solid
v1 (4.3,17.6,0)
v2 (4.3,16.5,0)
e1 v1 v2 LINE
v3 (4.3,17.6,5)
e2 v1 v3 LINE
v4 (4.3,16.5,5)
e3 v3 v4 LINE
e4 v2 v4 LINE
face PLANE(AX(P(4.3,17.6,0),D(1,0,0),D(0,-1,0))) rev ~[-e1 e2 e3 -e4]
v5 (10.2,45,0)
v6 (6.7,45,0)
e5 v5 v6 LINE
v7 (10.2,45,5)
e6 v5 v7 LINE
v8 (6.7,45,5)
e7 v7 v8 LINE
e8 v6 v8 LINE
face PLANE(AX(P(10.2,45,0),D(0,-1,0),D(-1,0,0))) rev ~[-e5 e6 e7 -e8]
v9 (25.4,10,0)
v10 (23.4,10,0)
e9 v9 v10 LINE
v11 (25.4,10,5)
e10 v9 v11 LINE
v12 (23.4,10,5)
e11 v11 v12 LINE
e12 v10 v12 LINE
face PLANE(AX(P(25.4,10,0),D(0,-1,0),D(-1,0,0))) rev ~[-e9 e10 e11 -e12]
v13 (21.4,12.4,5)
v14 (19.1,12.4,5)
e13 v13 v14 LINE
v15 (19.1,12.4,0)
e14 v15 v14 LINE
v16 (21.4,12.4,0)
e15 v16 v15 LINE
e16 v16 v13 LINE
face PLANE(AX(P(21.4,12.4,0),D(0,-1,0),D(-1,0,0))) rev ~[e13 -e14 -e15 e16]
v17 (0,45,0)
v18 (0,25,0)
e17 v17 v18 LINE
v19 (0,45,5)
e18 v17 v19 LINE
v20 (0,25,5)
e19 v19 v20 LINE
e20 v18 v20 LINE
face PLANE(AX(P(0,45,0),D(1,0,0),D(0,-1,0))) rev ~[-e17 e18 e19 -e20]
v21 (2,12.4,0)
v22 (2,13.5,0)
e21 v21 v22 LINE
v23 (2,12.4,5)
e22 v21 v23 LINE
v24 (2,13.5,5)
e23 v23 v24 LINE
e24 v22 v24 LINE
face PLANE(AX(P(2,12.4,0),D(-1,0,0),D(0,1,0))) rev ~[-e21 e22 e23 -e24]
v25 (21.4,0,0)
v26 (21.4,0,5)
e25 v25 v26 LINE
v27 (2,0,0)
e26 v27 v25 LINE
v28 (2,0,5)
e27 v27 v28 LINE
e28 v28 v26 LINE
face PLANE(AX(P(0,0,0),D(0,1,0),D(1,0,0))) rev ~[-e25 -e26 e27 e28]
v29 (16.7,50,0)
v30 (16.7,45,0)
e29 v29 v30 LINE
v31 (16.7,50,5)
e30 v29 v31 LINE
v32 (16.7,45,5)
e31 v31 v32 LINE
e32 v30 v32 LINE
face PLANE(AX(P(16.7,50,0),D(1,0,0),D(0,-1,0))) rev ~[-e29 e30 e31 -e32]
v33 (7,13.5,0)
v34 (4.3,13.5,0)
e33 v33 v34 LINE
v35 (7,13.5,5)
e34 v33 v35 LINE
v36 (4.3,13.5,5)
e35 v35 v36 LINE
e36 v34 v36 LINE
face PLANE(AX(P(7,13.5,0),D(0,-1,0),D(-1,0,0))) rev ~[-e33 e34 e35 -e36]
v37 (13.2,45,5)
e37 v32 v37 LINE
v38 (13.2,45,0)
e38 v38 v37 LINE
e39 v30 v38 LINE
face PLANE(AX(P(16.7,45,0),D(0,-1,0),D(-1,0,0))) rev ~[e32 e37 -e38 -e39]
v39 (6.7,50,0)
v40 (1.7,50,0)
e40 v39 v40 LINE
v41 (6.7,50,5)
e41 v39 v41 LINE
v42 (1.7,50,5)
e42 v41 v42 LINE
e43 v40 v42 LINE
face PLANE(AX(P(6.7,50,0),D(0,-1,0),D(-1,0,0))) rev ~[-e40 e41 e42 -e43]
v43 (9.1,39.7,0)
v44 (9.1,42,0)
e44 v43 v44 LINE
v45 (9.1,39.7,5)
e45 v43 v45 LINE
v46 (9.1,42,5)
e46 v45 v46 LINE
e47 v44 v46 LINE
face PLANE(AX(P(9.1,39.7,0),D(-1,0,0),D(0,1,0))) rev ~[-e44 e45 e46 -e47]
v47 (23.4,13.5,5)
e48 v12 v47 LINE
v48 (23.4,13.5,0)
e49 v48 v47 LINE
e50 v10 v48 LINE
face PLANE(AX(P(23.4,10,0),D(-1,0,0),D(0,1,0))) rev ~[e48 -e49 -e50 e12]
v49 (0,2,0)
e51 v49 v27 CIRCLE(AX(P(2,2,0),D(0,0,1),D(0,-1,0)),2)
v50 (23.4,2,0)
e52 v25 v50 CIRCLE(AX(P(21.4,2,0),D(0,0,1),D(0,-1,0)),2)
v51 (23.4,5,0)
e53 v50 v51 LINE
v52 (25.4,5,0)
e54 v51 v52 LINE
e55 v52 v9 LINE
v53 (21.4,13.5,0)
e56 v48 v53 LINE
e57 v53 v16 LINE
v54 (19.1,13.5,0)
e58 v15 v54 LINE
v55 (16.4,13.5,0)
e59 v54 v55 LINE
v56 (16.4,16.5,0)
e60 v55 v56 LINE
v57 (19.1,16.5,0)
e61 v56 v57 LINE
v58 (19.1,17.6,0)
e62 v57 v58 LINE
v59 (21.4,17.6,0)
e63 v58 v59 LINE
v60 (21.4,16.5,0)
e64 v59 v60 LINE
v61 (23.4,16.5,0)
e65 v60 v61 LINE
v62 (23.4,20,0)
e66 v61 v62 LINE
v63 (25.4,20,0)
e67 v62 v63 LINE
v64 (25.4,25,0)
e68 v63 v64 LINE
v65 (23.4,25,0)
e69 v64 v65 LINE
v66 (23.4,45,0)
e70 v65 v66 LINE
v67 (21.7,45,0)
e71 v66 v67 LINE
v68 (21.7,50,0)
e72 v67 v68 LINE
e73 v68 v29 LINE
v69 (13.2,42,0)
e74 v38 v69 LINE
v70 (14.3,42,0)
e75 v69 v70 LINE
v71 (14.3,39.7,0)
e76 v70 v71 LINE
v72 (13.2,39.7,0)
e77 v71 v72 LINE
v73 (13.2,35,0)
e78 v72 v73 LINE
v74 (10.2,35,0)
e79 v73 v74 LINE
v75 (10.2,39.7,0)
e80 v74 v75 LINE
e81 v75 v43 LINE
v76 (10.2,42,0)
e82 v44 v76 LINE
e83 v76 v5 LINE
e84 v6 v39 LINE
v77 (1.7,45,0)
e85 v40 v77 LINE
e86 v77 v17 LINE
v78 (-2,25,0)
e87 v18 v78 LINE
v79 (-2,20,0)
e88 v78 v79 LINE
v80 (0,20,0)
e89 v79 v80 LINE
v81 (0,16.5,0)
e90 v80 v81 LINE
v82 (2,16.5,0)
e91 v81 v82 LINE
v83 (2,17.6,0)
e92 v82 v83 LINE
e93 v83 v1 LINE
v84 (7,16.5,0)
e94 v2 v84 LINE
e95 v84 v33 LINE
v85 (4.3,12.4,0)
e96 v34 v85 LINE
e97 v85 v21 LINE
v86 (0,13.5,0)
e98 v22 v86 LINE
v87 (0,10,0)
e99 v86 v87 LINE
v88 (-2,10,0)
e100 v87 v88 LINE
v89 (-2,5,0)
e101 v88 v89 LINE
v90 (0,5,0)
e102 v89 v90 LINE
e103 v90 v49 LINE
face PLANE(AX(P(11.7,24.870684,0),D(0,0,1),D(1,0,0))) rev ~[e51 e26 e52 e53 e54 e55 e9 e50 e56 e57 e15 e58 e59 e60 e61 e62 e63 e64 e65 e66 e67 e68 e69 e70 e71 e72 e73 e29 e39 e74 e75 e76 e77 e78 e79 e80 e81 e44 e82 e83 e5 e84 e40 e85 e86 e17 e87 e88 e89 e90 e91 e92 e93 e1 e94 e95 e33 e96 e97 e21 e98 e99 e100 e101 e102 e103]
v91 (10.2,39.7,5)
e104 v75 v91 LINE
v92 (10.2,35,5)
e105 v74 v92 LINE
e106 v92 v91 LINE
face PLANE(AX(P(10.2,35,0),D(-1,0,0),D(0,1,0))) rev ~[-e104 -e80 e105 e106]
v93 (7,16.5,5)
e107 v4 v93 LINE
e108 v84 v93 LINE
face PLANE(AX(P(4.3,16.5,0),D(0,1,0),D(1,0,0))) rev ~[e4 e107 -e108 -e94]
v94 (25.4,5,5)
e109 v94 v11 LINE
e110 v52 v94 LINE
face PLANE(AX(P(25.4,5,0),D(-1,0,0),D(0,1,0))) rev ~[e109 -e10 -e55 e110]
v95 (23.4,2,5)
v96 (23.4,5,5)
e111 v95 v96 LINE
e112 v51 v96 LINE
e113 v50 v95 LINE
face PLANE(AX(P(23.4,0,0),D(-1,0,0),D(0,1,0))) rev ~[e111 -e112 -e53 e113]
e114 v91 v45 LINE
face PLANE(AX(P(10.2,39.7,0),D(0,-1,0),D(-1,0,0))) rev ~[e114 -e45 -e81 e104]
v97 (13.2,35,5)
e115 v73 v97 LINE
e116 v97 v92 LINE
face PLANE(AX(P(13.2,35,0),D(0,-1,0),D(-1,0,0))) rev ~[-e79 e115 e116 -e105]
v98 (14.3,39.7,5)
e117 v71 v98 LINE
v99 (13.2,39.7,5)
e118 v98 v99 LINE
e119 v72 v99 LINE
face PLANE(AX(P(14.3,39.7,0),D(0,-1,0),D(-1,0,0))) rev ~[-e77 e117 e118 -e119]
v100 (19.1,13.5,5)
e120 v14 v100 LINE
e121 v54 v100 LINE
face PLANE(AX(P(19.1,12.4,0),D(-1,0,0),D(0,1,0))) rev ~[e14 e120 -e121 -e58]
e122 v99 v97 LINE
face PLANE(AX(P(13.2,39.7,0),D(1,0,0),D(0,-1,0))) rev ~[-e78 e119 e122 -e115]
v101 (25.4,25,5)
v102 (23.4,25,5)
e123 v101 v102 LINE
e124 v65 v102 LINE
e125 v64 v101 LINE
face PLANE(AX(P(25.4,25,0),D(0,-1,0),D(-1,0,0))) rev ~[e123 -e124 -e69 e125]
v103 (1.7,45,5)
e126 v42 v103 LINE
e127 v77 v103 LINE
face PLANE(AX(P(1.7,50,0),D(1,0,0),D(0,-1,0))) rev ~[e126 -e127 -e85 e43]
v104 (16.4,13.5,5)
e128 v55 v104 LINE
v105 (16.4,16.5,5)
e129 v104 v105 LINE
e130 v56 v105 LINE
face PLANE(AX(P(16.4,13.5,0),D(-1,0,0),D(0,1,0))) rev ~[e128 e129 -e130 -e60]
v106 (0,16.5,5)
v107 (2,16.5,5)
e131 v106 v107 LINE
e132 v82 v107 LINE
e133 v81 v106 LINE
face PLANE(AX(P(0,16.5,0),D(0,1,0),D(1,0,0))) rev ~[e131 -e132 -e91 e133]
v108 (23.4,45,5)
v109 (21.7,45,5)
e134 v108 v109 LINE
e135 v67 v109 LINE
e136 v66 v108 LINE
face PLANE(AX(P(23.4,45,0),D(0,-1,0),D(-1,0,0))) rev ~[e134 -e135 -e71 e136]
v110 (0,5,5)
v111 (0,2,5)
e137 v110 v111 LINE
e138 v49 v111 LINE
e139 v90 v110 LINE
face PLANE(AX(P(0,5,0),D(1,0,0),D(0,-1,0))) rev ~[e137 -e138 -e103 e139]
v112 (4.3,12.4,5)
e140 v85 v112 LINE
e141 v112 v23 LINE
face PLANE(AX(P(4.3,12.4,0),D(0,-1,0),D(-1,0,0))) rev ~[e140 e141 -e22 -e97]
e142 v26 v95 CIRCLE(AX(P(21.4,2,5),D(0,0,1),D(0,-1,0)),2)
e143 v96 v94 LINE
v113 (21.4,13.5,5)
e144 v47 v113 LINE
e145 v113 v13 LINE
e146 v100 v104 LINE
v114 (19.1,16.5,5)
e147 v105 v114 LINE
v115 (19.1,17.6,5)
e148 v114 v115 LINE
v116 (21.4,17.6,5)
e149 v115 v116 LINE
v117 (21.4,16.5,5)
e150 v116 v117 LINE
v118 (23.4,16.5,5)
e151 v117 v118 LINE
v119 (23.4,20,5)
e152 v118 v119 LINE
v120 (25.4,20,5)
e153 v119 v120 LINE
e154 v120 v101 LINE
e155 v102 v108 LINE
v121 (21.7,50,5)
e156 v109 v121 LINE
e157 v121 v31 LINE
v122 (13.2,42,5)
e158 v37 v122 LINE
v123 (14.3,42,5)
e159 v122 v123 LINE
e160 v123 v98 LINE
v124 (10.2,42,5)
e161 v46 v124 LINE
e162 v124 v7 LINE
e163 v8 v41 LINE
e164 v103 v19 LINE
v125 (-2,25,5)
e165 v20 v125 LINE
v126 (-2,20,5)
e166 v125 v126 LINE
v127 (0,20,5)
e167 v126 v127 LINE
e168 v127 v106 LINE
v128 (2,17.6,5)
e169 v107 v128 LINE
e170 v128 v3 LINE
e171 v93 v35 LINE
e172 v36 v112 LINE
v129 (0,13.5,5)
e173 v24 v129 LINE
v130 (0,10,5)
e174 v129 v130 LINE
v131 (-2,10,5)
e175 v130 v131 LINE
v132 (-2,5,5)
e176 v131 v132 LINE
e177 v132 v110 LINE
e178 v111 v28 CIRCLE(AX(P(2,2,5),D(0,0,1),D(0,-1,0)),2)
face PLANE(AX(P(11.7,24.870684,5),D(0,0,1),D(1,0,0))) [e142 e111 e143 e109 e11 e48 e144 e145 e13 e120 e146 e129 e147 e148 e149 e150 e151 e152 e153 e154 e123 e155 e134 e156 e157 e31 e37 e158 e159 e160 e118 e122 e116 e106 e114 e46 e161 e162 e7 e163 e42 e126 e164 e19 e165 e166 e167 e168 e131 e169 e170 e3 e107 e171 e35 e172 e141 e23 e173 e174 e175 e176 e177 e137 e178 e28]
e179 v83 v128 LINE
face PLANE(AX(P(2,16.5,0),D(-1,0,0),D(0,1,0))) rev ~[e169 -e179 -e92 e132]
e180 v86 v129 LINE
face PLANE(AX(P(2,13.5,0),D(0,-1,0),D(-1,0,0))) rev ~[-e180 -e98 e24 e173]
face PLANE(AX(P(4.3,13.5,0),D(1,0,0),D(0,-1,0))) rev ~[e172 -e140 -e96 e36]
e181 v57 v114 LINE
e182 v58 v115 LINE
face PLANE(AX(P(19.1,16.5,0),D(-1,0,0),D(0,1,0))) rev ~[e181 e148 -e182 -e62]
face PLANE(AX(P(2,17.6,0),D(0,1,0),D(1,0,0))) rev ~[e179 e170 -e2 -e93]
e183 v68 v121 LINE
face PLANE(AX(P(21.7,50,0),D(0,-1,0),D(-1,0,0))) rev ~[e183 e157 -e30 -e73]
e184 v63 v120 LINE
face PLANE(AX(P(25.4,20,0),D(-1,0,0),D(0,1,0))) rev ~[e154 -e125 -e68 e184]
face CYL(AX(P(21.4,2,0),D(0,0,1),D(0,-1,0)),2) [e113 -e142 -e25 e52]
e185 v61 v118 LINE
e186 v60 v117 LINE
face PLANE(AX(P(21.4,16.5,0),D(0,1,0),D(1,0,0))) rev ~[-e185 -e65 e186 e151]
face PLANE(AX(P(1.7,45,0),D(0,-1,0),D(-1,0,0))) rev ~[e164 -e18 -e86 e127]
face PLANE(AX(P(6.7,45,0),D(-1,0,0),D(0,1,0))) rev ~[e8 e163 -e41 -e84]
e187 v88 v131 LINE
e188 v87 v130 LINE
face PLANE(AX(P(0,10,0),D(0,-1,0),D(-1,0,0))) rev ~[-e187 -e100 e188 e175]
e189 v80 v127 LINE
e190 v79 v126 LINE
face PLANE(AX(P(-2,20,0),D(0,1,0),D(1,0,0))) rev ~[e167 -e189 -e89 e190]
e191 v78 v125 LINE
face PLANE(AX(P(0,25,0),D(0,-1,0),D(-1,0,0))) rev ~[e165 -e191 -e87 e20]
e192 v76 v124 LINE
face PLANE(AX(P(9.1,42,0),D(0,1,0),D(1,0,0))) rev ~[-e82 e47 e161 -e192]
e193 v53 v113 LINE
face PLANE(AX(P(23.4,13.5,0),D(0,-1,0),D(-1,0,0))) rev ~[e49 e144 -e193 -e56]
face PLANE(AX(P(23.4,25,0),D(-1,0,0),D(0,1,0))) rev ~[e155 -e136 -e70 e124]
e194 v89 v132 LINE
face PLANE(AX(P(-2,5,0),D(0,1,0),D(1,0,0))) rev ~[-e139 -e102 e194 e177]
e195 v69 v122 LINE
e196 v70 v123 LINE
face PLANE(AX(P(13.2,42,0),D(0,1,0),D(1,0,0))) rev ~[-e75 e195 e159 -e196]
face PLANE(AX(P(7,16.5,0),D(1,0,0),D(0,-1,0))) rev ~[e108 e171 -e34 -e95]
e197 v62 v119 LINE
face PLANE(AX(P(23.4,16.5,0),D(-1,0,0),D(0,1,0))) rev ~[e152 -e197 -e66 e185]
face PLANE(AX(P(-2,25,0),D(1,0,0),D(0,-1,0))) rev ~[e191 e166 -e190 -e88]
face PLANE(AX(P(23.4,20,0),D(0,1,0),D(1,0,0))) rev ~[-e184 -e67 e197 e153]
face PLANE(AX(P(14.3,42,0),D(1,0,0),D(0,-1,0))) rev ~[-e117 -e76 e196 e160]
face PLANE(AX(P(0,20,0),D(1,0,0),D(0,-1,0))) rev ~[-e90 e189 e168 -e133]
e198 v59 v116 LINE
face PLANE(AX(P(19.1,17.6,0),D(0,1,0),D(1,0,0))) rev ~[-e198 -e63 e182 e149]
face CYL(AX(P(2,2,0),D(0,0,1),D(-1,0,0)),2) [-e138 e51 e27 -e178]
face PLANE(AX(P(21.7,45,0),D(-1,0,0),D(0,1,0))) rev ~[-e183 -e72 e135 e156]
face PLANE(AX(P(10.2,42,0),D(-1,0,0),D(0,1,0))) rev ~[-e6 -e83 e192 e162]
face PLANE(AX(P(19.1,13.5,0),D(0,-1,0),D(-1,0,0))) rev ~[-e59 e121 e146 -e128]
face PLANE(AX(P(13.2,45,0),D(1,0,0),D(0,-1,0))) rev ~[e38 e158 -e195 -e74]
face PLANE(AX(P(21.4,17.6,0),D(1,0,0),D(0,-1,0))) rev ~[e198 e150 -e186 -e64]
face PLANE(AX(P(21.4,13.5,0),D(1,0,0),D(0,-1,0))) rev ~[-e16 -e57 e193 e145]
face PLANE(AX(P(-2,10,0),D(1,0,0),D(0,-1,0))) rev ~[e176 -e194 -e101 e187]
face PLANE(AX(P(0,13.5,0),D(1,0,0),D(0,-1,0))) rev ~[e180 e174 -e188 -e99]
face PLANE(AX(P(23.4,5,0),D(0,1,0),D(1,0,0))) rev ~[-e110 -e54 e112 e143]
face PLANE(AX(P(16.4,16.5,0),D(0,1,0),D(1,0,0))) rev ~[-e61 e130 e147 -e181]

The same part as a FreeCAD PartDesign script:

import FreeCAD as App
import Part
import Sketcher


def edges_at(feature, points):
    """Names of the edges that pass closest to the given points."""
    edges = feature.Shape.Edges
    near = lambda p: min(range(len(edges)), key=lambda i: edges[i].distToShape(Part.Vertex(*p))[0])
    return sorted({f"Edge{near(p) + 1}" for p in points})


def add_polygon(sketch, points):
    """Adds a closed chain of lines whose ends are joined by coincident constraints."""
    first, n = sketch.GeometryCount, len(points)
    for a, b in zip(points, points[1:] + points[:1]):
        sketch.addGeometry(Part.LineSegment(App.Vector(*a, 0), App.Vector(*b, 0)), False)
    for i in range(n):
        sketch.addConstraint(Sketcher.Constraint("Coincident", first + i, 2, first + (i + 1) % n, 1))

doc = App.newDocument("Part")
body = doc.addObject("PartDesign::Body", "Body")

# Sketch on XY plane
sketch1 = doc.addObject("Sketcher::SketchObject", "Sketch")
body.addObject(sketch1)
sketch1.AttachmentSupport = (doc.XY_Plane, [""])
sketch1.MapMode = "FlatFace"
add_polygon(sketch1, [(1.7, 50), (1.7, 45), (0, 45), (0, 25), (-2, 25), (-2, 20), (0, 20), (0, 16.5), (2, 16.5), (2, 17.6), (4.3, 17.6), (4.3, 16.5), (7, 16.5), (7, 13.5), (4.3, 13.5), (4.3, 12.4), (2, 12.4), (2, 13.5), (0, 13.5), (0, 10), (-2, 10), (-2, 5), (0, 5), (0, 0), (23.4, 0), (23.4, 5), (25.4, 5), (25.4, 10), (23.4, 10), (23.4, 13.5), (21.4, 13.5), (21.4, 12.4), (19.1, 12.4), (19.1, 13.5), (16.4, 13.5), (16.4, 16.5), (19.1, 16.5), (19.1, 17.6), (21.4, 17.6), (21.4, 16.5), (23.4, 16.5), (23.4, 20), (25.4, 20), (25.4, 25), (23.4, 25), (23.4, 45), (21.7, 45), (21.7, 50), (16.7, 50), (16.7, 45), (13.2, 45), (13.2, 42), (14.3, 42), (14.3, 39.7), (13.2, 39.7), (13.2, 35), (10.2, 35), (10.2, 39.7), (9.1, 39.7), (9.1, 42), (10.2, 42), (10.2, 45), (6.7, 45), (6.7, 50)])  # lines 0-63
sketch1.addConstraint([
    Sketcher.Constraint("Vertical", 0),
    Sketcher.Constraint("Horizontal", 1),
    Sketcher.Constraint("Vertical", 2),
    Sketcher.Constraint("Horizontal", 3),
    Sketcher.Constraint("Vertical", 4),
    Sketcher.Constraint("Horizontal", 5),
    Sketcher.Constraint("Vertical", 6),
    Sketcher.Constraint("Horizontal", 7),
    Sketcher.Constraint("Vertical", 8),
    Sketcher.Constraint("Horizontal", 9),
    Sketcher.Constraint("Vertical", 10),
    Sketcher.Constraint("Horizontal", 11),
    Sketcher.Constraint("Vertical", 12),
    Sketcher.Constraint("Horizontal", 13),
    Sketcher.Constraint("Vertical", 14),
    Sketcher.Constraint("Horizontal", 15),
    Sketcher.Constraint("Vertical", 16),
    Sketcher.Constraint("Horizontal", 17),
    Sketcher.Constraint("Vertical", 18),
    Sketcher.Constraint("Horizontal", 19),
    Sketcher.Constraint("Vertical", 20),
    Sketcher.Constraint("Horizontal", 21),
    Sketcher.Constraint("Vertical", 22),
    Sketcher.Constraint("Horizontal", 23),
    Sketcher.Constraint("Vertical", 24),
    Sketcher.Constraint("Horizontal", 25),
    Sketcher.Constraint("Vertical", 26),
    Sketcher.Constraint("Horizontal", 27),
    Sketcher.Constraint("Vertical", 28),
    Sketcher.Constraint("Horizontal", 29),
    Sketcher.Constraint("Vertical", 30),
    Sketcher.Constraint("Horizontal", 31),
    Sketcher.Constraint("Vertical", 32),
    Sketcher.Constraint("Horizontal", 33),
    Sketcher.Constraint("Vertical", 34),
    Sketcher.Constraint("Horizontal", 35),
    Sketcher.Constraint("Vertical", 36),
    Sketcher.Constraint("Horizontal", 37),
    Sketcher.Constraint("Vertical", 38),
    Sketcher.Constraint("Horizontal", 39),
    Sketcher.Constraint("Vertical", 40),
    Sketcher.Constraint("Horizontal", 41),
    Sketcher.Constraint("Vertical", 42),
    Sketcher.Constraint("Horizontal", 43),
    Sketcher.Constraint("Vertical", 44),
    Sketcher.Constraint("Horizontal", 45),
    Sketcher.Constraint("Vertical", 46),
    Sketcher.Constraint("Horizontal", 47),
    Sketcher.Constraint("Vertical", 48),
    Sketcher.Constraint("Horizontal", 49),
    Sketcher.Constraint("Vertical", 50),
    Sketcher.Constraint("Horizontal", 51),
    Sketcher.Constraint("Vertical", 52),
    Sketcher.Constraint("Horizontal", 53),
    Sketcher.Constraint("Vertical", 54),
    Sketcher.Constraint("Horizontal", 55),
    Sketcher.Constraint("Vertical", 56),
    Sketcher.Constraint("Horizontal", 57),
    Sketcher.Constraint("Vertical", 58),
    Sketcher.Constraint("Horizontal", 59),
    Sketcher.Constraint("Vertical", 60),
    Sketcher.Constraint("Horizontal", 61),
    Sketcher.Constraint("Vertical", 62),
    Sketcher.Constraint("Horizontal", 63),
    Sketcher.Constraint("Coincident", 22, 2, -1, 1),
    Sketcher.Constraint("PointOnObject", 1, 2, -2),
    Sketcher.Constraint("PointOnObject", 5, 2, -2),
    Sketcher.Constraint("PointOnObject", 17, 2, -2),
    Sketcher.Constraint("Horizontal", 7, 2, 10, 2),
    Sketcher.Constraint("Horizontal", 13, 2, 16, 2),
    Sketcher.Constraint("Horizontal", 21, 2, 24, 2),
    Sketcher.Constraint("Horizontal", 19, 2, 26, 2),
    Sketcher.Constraint("Horizontal", 17, 2, 28, 2),
    Sketcher.Constraint("Horizontal", 15, 2, 30, 2),
    Sketcher.Constraint("Horizontal", 29, 2, 32, 2),
    Sketcher.Constraint("Horizontal", 11, 2, 34, 2),
    Sketcher.Constraint("Horizontal", 9, 2, 36, 2),
    Sketcher.Constraint("Horizontal", 35, 2, 38, 2),
    Sketcher.Constraint("Horizontal", 5, 2, 40, 2),
    Sketcher.Constraint("Horizontal", 3, 2, 42, 2),
    Sketcher.Constraint("Horizontal", 1, 2, 44, 2),
    Sketcher.Constraint("Horizontal", 45, 2, 48, 2),
    Sketcher.Constraint("Horizontal", 53, 2, 56, 2),
    Sketcher.Constraint("Horizontal", 51, 2, 58, 2),
    Sketcher.Constraint("Horizontal", 49, 2, 60, 2),
    Sketcher.Constraint("Horizontal", 47, 2, 62, 2),
    Sketcher.Constraint("Vertical", 10, 2, 13, 2),
    Sketcher.Constraint("Vertical", 8, 2, 15, 2),
    Sketcher.Constraint("Vertical", 4, 2, 19, 2),
    Sketcher.Constraint("Vertical", 24, 2, 27, 2),
    Sketcher.Constraint("Vertical", 32, 2, 35, 2),
    Sketcher.Constraint("Vertical", 30, 2, 37, 2),
    Sketcher.Constraint("Vertical", 28, 2, 39, 2),
    Sketcher.Constraint("Vertical", 26, 2, 41, 2),
    Sketcher.Constraint("Vertical", 40, 2, 43, 2),
    Sketcher.Constraint("Vertical", 50, 2, 53, 2),
    Sketcher.Constraint("Vertical", 56, 2, 59, 2),
    Sketcher.Constraint("Equal", 5, 7),
    Sketcher.Constraint("Equal", 21, 25),
    Sketcher.Constraint("Equal", 27, 29),
    Sketcher.Constraint("Equal", 15, 31),
    Sketcher.Constraint("Equal", 13, 33),
    Sketcher.Constraint("Equal", 1, 45),
    Sketcher.Constraint("Equal", 53, 57),
    Sketcher.Constraint("Equal", 49, 61),
    Sketcher.Constraint("Equal", 47, 63),
    Sketcher.Constraint("Equal", 63, 0),
    Sketcher.Constraint("Equal", 0, 4),
    Sketcher.Constraint("Equal", 61, 6),
    Sketcher.Constraint("Equal", 59, 8),
    Sketcher.Constraint("Equal", 55, 12),
    Sketcher.Constraint("Equal", 10, 14),
    Sketcher.Constraint("Equal", 6, 18),
    Sketcher.Constraint("Equal", 4, 20),
    Sketcher.Constraint("Equal", 20, 22),
    Sketcher.Constraint("Equal", 34, 50),
    Sketcher.Constraint("Equal", 37, 52),
    Sketcher.Constraint("DistanceX", 3, 2, 3, 1, 2.0),
    Sketcher.Constraint("DistanceX", 47, 2, 47, 1, 5.0),
    Sketcher.Constraint("DistanceX", 55, 2, 55, 1, 3.0),
    Sketcher.Constraint("DistanceY", 2, 2, 2, 1, 20.0),
    Sketcher.Constraint("DistanceX", 1, 2, 1, 1, 1.7),
    Sketcher.Constraint("DistanceX", 9, 1, 9, 2, 2.3),
    Sketcher.Constraint("DistanceX", 11, 1, 11, 2, 2.7),
    Sketcher.Constraint("DistanceX", 23, 1, 23, 2, 23.4),
    Sketcher.Constraint("DistanceX", 51, 1, 51, 2, 1.1),
    Sketcher.Constraint("DistanceY", 54, 2, 54, 1, 4.7),
])
pad1 = doc.addObject("PartDesign::Pad", "Pad")
body.addObject(pad1)
pad1.Profile = sketch1
pad1.Length = 5
doc.recompute()

fillet = doc.addObject("PartDesign::Fillet", "Fillet")
body.addObject(fillet)
fillet.Base = (pad1, edges_at(pad1, [(23.4, 0, 2.5), (0, 0, 2.5)]))
fillet.Radius = 2

doc.recompute()
